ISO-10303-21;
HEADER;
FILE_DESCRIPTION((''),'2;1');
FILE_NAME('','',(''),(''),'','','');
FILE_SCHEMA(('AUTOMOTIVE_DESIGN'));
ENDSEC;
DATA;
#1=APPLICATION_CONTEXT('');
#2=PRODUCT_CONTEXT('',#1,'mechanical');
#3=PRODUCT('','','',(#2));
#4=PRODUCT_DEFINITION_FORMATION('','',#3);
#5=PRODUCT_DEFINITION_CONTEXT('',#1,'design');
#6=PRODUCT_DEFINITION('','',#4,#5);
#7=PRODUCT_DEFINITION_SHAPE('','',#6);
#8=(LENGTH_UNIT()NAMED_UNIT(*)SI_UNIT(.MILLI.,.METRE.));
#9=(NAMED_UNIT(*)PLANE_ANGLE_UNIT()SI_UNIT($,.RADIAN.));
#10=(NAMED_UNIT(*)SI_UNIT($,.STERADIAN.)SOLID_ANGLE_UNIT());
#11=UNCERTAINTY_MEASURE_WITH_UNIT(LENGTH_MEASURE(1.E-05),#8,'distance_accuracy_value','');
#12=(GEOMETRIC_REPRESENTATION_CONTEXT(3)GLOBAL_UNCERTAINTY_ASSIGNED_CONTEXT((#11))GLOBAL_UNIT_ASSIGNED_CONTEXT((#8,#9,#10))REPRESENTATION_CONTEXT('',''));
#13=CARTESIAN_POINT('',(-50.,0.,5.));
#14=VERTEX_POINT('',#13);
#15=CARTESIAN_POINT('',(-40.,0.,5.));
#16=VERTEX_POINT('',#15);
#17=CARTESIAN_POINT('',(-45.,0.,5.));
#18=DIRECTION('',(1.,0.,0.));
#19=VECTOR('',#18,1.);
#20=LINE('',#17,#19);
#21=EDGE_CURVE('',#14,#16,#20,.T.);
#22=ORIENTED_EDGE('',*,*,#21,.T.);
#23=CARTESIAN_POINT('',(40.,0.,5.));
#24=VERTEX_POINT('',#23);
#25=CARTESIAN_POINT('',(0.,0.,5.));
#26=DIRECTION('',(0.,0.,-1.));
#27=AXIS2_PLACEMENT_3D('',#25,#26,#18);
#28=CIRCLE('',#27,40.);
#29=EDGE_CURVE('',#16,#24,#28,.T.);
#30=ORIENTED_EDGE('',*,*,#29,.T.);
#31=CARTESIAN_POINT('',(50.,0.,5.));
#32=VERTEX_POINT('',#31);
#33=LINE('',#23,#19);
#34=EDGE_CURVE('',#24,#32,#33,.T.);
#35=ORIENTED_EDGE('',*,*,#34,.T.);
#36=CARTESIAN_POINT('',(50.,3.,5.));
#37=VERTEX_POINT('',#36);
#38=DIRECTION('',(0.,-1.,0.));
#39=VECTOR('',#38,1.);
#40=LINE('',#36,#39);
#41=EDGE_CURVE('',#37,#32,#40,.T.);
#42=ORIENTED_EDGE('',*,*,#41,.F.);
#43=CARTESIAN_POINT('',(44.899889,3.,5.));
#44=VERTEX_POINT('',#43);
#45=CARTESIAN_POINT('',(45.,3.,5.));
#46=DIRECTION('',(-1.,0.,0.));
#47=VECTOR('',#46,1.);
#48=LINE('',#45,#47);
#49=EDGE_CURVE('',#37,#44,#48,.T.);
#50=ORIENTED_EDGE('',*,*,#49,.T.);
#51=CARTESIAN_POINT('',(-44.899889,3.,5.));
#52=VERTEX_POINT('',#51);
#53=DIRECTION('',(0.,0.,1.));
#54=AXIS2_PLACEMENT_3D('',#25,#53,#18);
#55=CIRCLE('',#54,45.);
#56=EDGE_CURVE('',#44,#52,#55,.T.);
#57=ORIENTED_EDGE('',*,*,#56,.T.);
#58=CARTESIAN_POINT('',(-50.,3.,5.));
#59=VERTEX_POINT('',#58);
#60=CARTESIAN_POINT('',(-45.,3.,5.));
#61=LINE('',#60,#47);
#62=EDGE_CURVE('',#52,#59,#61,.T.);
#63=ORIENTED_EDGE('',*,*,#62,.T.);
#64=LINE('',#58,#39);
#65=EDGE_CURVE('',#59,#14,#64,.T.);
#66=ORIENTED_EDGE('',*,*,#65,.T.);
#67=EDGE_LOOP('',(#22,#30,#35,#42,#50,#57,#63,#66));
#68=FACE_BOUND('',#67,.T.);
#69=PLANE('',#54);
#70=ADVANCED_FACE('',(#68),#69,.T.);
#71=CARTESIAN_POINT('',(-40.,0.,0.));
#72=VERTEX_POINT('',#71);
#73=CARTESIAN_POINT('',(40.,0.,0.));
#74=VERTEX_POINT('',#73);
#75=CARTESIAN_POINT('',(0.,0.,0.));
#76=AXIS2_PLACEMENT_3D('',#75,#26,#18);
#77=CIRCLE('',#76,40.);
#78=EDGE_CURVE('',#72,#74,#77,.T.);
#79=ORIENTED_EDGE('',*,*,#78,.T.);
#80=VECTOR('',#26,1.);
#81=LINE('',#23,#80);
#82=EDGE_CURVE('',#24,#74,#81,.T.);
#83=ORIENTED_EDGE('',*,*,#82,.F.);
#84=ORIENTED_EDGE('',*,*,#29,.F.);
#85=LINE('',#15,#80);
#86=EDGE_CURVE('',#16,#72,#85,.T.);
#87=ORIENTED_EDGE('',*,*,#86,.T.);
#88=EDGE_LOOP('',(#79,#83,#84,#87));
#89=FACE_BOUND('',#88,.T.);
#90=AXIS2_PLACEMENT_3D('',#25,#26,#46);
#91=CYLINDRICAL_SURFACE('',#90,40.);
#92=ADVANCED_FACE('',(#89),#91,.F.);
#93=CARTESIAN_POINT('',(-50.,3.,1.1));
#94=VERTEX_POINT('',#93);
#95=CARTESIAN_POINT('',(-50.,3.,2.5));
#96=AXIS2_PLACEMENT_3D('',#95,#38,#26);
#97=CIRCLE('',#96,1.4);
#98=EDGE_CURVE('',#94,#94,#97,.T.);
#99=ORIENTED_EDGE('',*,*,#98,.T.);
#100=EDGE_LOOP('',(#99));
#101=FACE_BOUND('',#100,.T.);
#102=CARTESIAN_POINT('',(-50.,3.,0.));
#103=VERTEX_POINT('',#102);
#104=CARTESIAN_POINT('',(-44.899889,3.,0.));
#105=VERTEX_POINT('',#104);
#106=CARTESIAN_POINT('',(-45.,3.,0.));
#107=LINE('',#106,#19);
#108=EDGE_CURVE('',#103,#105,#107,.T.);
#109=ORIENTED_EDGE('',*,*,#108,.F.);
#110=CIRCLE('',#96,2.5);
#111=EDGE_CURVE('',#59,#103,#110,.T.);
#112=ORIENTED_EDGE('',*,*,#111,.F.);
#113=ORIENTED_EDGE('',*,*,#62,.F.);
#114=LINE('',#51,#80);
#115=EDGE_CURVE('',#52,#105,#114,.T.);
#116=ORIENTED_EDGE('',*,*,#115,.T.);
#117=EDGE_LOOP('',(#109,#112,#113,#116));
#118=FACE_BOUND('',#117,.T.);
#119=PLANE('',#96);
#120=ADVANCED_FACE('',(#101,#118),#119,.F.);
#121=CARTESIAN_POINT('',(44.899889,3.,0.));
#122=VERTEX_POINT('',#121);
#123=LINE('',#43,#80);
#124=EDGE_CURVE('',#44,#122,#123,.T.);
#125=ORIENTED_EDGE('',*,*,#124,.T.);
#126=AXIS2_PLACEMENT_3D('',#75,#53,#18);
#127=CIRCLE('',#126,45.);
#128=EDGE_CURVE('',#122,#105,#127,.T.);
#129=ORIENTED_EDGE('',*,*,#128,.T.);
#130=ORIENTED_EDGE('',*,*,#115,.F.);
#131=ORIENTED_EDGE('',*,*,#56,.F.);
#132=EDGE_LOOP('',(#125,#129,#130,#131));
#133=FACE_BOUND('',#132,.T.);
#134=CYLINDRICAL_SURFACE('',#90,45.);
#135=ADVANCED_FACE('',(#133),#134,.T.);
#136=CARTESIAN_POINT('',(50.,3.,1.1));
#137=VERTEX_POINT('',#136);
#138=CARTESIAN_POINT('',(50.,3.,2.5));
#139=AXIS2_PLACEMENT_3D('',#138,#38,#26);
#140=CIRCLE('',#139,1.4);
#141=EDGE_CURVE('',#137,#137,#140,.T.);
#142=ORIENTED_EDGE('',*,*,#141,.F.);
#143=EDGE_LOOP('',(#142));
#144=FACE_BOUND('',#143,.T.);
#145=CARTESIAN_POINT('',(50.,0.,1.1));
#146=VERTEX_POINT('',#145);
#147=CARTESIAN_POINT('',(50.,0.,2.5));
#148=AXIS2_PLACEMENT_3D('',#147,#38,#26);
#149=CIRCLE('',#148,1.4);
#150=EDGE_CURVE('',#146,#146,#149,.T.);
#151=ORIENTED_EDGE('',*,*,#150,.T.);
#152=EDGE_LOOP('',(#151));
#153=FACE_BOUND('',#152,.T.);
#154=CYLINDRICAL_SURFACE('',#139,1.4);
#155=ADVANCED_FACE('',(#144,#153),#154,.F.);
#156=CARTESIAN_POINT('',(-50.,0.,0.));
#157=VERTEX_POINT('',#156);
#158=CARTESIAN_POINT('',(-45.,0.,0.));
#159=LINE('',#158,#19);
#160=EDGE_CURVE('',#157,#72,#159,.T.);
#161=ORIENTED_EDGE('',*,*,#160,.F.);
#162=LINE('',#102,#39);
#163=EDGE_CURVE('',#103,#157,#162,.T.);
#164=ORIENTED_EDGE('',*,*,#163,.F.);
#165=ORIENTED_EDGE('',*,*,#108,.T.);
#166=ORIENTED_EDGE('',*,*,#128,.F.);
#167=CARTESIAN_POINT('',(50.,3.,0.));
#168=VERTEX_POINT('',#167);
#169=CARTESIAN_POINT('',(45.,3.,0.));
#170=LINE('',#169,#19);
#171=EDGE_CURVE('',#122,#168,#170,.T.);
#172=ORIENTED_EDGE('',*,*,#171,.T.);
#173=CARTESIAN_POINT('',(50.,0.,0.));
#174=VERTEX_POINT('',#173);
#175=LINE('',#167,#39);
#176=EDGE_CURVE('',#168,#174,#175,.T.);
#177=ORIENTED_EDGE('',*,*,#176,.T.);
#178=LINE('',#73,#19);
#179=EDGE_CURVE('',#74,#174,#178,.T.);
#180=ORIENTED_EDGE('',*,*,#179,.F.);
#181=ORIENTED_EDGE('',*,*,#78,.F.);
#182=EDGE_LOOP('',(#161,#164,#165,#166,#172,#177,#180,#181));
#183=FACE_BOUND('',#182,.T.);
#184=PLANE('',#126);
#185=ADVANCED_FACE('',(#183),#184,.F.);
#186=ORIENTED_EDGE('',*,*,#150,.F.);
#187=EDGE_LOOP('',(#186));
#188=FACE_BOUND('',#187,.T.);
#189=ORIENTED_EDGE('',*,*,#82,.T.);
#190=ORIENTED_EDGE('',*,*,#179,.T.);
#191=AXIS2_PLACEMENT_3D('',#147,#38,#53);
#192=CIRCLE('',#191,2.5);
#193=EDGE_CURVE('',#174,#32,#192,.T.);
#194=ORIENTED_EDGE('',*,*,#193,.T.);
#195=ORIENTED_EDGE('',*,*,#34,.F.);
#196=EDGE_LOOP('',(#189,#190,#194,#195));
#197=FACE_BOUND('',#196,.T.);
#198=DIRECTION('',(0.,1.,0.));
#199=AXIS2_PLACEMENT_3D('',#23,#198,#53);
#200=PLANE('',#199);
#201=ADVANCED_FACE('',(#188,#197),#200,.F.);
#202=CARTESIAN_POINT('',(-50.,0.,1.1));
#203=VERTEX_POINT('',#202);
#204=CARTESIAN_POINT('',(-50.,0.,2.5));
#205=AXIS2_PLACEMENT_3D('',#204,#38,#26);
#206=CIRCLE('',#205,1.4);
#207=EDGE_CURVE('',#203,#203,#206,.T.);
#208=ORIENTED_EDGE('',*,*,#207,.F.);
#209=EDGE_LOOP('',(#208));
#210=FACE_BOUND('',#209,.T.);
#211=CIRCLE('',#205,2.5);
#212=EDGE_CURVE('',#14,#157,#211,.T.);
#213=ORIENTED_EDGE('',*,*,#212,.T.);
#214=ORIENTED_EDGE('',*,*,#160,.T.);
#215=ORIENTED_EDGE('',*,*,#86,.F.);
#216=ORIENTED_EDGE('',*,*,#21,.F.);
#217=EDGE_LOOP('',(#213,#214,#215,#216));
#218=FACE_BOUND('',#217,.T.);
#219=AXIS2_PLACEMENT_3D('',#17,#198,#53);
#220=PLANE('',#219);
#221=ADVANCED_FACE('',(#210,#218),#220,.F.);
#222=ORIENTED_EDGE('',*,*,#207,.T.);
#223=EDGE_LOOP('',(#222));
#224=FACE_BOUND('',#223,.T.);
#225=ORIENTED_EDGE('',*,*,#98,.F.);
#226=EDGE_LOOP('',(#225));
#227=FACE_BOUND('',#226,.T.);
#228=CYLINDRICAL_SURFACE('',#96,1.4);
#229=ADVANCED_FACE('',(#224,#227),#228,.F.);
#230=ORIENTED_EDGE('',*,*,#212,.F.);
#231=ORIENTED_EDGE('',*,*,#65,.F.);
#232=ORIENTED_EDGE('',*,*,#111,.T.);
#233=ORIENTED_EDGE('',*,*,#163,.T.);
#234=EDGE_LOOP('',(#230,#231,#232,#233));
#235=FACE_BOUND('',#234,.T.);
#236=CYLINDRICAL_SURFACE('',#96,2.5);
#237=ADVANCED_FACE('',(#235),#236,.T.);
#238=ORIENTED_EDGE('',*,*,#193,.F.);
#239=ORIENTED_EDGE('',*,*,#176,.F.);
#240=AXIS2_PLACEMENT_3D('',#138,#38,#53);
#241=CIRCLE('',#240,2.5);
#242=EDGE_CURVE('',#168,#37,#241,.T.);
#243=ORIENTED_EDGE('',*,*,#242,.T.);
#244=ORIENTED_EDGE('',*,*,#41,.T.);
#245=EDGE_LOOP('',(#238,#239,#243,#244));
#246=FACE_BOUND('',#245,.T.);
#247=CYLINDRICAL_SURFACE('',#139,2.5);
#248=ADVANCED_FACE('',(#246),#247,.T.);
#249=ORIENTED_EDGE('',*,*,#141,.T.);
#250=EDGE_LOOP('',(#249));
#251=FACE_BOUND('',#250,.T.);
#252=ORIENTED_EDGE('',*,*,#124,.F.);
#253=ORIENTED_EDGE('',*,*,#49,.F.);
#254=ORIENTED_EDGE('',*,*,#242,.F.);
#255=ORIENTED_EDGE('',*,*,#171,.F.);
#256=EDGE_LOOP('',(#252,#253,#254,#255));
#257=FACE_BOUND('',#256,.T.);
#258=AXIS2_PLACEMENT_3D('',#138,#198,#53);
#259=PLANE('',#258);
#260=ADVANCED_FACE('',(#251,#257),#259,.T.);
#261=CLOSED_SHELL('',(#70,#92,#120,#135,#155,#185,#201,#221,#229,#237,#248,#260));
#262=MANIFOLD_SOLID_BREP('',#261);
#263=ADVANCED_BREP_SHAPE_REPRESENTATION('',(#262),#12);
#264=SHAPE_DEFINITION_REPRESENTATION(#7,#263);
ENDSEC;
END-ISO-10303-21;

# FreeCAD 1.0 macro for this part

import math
import FreeCAD as App
import Part
import Sketcher

V = App.Vector

doc = App.newDocument("Part")
body = doc.addObject("PartDesign::Body", "Body")

# Sketch on XY plane
sketch1 = body.newObject("Sketcher::SketchObject", "Sketch")
sketch1.AttachmentSupport = (doc.getObject("XY_Plane"), [""])
sketch1.MapMode = "FlatFace"
sketch1.addGeometry(Part.LineSegment(V(-45, 0, 0), V(-40, 0, 0)), False)
sketch1.addGeometry(Part.ArcOfCircle(Part.Circle(V(0, 0, 0), V(0, 0, 1), 40), math.radians(0), math.radians(180)), False)
sketch1.addGeometry(Part.LineSegment(V(40, 0, 0), V(45, 0, 0)), False)
sketch1.addGeometry(Part.ArcOfCircle(Part.Circle(V(0, 0, 0), V(0, 0, 1), 45), math.radians(0), math.radians(180)), False)
sketch1.addConstraint(Sketcher.Constraint("Coincident", 0, 2, 1, 2))
sketch1.addConstraint(Sketcher.Constraint("Coincident", 1, 1, 2, 1))
sketch1.addConstraint(Sketcher.Constraint("Coincident", 2, 2, 3, 1))
sketch1.addConstraint(Sketcher.Constraint("Coincident", 3, 2, 0, 1))
sketch1.addConstraint(Sketcher.Constraint("Horizontal", 0))
sketch1.addConstraint(Sketcher.Constraint("Horizontal", 2))
sketch1.addConstraint(Sketcher.Constraint("Coincident", 1, 3, -1, 1))
sketch1.addConstraint(Sketcher.Constraint("Coincident", 3, 3, -1, 1))
sketch1.addConstraint(Sketcher.Constraint("PointOnObject", 0, 2, -1))
sketch1.addConstraint(Sketcher.Constraint("PointOnObject", 1, 1, -1))
sketch1.addConstraint(Sketcher.Constraint("Radius", 1, 40.0))
sketch1.addConstraint(Sketcher.Constraint("Radius", 3, 45.0))
pad1 = body.newObject("PartDesign::Pad", "Pad")
pad1.Profile = sketch1
pad1.Length = 5

# Sketch on XZ plane
sketch2 = body.newObject("Sketcher::SketchObject", "Sketch001")
sketch2.AttachmentSupport = (doc.getObject("XZ_Plane"), [""])
sketch2.MapMode = "FlatFace"
sketch2.addGeometry(Part.ArcOfCircle(Part.Circle(V(-50, 2.5, 0), V(0, 0, 1), 2.5), math.radians(90), math.radians(270)), False)
sketch2.addGeometry(Part.LineSegment(V(-50, 0, 0), V(-44.1, 0, 0)), False)
sketch2.addGeometry(Part.LineSegment(V(-44.1, 0, 0), V(-44.1, 5, 0)), False)
sketch2.addGeometry(Part.LineSegment(V(-44.1, 5, 0), V(-50, 5, 0)), False)
sketch2.addGeometry(Part.Circle(V(-50, 2.5, 0), V(0, 0, 1), 1.4), False)
sketch2.addGeometry(Part.LineSegment(V(44.1, 5, 0), V(44.1, 0, 0)), False)
sketch2.addGeometry(Part.LineSegment(V(44.1, 0, 0), V(50, 0, 0)), False)
sketch2.addGeometry(Part.ArcOfCircle(Part.Circle(V(50, 2.5, 0), V(0, 0, 1), 2.5), math.radians(-90), math.radians(90)), False)
sketch2.addGeometry(Part.LineSegment(V(50, 5, 0), V(44.1, 5, 0)), False)
sketch2.addGeometry(Part.Circle(V(50, 2.5, 0), V(0, 0, 1), 1.4), False)
sketch2.addConstraint(Sketcher.Constraint("Tangent", 0, 2, 1, 1))
sketch2.addConstraint(Sketcher.Constraint("Coincident", 1, 2, 2, 1))
sketch2.addConstraint(Sketcher.Constraint("Coincident", 2, 2, 3, 1))
sketch2.addConstraint(Sketcher.Constraint("Tangent", 3, 2, 0, 1))
sketch2.addConstraint(Sketcher.Constraint("Coincident", 5, 2, 6, 1))
sketch2.addConstraint(Sketcher.Constraint("Tangent", 6, 2, 7, 1))
sketch2.addConstraint(Sketcher.Constraint("Tangent", 7, 2, 8, 1))
sketch2.addConstraint(Sketcher.Constraint("Coincident", 8, 2, 5, 1))
sketch2.addConstraint(Sketcher.Constraint("Horizontal", 1))
sketch2.addConstraint(Sketcher.Constraint("Vertical", 2))
sketch2.addConstraint(Sketcher.Constraint("Horizontal", 3))
sketch2.addConstraint(Sketcher.Constraint("Vertical", 5))
sketch2.addConstraint(Sketcher.Constraint("Horizontal", 6))
sketch2.addConstraint(Sketcher.Constraint("Horizontal", 8))
sketch2.addConstraint(Sketcher.Constraint("Coincident", 4, 3, 0, 3))
sketch2.addConstraint(Sketcher.Constraint("Coincident", 9, 3, 7, 3))
sketch2.addConstraint(Sketcher.Constraint("Equal", 0, 7))
sketch2.addConstraint(Sketcher.Constraint("Equal", 4, 9))
sketch2.addConstraint(Sketcher.Constraint("Symmetric", 1, 2, 5, 2, -1, 1))
sketch2.addConstraint(Sketcher.Constraint("Symmetric", 0, 3, 7, 3, -2))
sketch2.addConstraint(Sketcher.Constraint("Diameter", 4, 2.8))
sketch2.addConstraint(Sketcher.Constraint("Radius", 0, 2.5))
sketch2.addConstraint(Sketcher.Constraint("DistanceX", 0, 3, -1, 1, 50.0))
sketch2.addConstraint(Sketcher.Constraint("DistanceX", 1, 1, 1, 2, 5.867705))
pad2 = body.newObject("PartDesign::Pad", "Pad001")
pad2.Profile = sketch2
pad2.Length = 3
pad2.Reversed = True

doc.recompute()
